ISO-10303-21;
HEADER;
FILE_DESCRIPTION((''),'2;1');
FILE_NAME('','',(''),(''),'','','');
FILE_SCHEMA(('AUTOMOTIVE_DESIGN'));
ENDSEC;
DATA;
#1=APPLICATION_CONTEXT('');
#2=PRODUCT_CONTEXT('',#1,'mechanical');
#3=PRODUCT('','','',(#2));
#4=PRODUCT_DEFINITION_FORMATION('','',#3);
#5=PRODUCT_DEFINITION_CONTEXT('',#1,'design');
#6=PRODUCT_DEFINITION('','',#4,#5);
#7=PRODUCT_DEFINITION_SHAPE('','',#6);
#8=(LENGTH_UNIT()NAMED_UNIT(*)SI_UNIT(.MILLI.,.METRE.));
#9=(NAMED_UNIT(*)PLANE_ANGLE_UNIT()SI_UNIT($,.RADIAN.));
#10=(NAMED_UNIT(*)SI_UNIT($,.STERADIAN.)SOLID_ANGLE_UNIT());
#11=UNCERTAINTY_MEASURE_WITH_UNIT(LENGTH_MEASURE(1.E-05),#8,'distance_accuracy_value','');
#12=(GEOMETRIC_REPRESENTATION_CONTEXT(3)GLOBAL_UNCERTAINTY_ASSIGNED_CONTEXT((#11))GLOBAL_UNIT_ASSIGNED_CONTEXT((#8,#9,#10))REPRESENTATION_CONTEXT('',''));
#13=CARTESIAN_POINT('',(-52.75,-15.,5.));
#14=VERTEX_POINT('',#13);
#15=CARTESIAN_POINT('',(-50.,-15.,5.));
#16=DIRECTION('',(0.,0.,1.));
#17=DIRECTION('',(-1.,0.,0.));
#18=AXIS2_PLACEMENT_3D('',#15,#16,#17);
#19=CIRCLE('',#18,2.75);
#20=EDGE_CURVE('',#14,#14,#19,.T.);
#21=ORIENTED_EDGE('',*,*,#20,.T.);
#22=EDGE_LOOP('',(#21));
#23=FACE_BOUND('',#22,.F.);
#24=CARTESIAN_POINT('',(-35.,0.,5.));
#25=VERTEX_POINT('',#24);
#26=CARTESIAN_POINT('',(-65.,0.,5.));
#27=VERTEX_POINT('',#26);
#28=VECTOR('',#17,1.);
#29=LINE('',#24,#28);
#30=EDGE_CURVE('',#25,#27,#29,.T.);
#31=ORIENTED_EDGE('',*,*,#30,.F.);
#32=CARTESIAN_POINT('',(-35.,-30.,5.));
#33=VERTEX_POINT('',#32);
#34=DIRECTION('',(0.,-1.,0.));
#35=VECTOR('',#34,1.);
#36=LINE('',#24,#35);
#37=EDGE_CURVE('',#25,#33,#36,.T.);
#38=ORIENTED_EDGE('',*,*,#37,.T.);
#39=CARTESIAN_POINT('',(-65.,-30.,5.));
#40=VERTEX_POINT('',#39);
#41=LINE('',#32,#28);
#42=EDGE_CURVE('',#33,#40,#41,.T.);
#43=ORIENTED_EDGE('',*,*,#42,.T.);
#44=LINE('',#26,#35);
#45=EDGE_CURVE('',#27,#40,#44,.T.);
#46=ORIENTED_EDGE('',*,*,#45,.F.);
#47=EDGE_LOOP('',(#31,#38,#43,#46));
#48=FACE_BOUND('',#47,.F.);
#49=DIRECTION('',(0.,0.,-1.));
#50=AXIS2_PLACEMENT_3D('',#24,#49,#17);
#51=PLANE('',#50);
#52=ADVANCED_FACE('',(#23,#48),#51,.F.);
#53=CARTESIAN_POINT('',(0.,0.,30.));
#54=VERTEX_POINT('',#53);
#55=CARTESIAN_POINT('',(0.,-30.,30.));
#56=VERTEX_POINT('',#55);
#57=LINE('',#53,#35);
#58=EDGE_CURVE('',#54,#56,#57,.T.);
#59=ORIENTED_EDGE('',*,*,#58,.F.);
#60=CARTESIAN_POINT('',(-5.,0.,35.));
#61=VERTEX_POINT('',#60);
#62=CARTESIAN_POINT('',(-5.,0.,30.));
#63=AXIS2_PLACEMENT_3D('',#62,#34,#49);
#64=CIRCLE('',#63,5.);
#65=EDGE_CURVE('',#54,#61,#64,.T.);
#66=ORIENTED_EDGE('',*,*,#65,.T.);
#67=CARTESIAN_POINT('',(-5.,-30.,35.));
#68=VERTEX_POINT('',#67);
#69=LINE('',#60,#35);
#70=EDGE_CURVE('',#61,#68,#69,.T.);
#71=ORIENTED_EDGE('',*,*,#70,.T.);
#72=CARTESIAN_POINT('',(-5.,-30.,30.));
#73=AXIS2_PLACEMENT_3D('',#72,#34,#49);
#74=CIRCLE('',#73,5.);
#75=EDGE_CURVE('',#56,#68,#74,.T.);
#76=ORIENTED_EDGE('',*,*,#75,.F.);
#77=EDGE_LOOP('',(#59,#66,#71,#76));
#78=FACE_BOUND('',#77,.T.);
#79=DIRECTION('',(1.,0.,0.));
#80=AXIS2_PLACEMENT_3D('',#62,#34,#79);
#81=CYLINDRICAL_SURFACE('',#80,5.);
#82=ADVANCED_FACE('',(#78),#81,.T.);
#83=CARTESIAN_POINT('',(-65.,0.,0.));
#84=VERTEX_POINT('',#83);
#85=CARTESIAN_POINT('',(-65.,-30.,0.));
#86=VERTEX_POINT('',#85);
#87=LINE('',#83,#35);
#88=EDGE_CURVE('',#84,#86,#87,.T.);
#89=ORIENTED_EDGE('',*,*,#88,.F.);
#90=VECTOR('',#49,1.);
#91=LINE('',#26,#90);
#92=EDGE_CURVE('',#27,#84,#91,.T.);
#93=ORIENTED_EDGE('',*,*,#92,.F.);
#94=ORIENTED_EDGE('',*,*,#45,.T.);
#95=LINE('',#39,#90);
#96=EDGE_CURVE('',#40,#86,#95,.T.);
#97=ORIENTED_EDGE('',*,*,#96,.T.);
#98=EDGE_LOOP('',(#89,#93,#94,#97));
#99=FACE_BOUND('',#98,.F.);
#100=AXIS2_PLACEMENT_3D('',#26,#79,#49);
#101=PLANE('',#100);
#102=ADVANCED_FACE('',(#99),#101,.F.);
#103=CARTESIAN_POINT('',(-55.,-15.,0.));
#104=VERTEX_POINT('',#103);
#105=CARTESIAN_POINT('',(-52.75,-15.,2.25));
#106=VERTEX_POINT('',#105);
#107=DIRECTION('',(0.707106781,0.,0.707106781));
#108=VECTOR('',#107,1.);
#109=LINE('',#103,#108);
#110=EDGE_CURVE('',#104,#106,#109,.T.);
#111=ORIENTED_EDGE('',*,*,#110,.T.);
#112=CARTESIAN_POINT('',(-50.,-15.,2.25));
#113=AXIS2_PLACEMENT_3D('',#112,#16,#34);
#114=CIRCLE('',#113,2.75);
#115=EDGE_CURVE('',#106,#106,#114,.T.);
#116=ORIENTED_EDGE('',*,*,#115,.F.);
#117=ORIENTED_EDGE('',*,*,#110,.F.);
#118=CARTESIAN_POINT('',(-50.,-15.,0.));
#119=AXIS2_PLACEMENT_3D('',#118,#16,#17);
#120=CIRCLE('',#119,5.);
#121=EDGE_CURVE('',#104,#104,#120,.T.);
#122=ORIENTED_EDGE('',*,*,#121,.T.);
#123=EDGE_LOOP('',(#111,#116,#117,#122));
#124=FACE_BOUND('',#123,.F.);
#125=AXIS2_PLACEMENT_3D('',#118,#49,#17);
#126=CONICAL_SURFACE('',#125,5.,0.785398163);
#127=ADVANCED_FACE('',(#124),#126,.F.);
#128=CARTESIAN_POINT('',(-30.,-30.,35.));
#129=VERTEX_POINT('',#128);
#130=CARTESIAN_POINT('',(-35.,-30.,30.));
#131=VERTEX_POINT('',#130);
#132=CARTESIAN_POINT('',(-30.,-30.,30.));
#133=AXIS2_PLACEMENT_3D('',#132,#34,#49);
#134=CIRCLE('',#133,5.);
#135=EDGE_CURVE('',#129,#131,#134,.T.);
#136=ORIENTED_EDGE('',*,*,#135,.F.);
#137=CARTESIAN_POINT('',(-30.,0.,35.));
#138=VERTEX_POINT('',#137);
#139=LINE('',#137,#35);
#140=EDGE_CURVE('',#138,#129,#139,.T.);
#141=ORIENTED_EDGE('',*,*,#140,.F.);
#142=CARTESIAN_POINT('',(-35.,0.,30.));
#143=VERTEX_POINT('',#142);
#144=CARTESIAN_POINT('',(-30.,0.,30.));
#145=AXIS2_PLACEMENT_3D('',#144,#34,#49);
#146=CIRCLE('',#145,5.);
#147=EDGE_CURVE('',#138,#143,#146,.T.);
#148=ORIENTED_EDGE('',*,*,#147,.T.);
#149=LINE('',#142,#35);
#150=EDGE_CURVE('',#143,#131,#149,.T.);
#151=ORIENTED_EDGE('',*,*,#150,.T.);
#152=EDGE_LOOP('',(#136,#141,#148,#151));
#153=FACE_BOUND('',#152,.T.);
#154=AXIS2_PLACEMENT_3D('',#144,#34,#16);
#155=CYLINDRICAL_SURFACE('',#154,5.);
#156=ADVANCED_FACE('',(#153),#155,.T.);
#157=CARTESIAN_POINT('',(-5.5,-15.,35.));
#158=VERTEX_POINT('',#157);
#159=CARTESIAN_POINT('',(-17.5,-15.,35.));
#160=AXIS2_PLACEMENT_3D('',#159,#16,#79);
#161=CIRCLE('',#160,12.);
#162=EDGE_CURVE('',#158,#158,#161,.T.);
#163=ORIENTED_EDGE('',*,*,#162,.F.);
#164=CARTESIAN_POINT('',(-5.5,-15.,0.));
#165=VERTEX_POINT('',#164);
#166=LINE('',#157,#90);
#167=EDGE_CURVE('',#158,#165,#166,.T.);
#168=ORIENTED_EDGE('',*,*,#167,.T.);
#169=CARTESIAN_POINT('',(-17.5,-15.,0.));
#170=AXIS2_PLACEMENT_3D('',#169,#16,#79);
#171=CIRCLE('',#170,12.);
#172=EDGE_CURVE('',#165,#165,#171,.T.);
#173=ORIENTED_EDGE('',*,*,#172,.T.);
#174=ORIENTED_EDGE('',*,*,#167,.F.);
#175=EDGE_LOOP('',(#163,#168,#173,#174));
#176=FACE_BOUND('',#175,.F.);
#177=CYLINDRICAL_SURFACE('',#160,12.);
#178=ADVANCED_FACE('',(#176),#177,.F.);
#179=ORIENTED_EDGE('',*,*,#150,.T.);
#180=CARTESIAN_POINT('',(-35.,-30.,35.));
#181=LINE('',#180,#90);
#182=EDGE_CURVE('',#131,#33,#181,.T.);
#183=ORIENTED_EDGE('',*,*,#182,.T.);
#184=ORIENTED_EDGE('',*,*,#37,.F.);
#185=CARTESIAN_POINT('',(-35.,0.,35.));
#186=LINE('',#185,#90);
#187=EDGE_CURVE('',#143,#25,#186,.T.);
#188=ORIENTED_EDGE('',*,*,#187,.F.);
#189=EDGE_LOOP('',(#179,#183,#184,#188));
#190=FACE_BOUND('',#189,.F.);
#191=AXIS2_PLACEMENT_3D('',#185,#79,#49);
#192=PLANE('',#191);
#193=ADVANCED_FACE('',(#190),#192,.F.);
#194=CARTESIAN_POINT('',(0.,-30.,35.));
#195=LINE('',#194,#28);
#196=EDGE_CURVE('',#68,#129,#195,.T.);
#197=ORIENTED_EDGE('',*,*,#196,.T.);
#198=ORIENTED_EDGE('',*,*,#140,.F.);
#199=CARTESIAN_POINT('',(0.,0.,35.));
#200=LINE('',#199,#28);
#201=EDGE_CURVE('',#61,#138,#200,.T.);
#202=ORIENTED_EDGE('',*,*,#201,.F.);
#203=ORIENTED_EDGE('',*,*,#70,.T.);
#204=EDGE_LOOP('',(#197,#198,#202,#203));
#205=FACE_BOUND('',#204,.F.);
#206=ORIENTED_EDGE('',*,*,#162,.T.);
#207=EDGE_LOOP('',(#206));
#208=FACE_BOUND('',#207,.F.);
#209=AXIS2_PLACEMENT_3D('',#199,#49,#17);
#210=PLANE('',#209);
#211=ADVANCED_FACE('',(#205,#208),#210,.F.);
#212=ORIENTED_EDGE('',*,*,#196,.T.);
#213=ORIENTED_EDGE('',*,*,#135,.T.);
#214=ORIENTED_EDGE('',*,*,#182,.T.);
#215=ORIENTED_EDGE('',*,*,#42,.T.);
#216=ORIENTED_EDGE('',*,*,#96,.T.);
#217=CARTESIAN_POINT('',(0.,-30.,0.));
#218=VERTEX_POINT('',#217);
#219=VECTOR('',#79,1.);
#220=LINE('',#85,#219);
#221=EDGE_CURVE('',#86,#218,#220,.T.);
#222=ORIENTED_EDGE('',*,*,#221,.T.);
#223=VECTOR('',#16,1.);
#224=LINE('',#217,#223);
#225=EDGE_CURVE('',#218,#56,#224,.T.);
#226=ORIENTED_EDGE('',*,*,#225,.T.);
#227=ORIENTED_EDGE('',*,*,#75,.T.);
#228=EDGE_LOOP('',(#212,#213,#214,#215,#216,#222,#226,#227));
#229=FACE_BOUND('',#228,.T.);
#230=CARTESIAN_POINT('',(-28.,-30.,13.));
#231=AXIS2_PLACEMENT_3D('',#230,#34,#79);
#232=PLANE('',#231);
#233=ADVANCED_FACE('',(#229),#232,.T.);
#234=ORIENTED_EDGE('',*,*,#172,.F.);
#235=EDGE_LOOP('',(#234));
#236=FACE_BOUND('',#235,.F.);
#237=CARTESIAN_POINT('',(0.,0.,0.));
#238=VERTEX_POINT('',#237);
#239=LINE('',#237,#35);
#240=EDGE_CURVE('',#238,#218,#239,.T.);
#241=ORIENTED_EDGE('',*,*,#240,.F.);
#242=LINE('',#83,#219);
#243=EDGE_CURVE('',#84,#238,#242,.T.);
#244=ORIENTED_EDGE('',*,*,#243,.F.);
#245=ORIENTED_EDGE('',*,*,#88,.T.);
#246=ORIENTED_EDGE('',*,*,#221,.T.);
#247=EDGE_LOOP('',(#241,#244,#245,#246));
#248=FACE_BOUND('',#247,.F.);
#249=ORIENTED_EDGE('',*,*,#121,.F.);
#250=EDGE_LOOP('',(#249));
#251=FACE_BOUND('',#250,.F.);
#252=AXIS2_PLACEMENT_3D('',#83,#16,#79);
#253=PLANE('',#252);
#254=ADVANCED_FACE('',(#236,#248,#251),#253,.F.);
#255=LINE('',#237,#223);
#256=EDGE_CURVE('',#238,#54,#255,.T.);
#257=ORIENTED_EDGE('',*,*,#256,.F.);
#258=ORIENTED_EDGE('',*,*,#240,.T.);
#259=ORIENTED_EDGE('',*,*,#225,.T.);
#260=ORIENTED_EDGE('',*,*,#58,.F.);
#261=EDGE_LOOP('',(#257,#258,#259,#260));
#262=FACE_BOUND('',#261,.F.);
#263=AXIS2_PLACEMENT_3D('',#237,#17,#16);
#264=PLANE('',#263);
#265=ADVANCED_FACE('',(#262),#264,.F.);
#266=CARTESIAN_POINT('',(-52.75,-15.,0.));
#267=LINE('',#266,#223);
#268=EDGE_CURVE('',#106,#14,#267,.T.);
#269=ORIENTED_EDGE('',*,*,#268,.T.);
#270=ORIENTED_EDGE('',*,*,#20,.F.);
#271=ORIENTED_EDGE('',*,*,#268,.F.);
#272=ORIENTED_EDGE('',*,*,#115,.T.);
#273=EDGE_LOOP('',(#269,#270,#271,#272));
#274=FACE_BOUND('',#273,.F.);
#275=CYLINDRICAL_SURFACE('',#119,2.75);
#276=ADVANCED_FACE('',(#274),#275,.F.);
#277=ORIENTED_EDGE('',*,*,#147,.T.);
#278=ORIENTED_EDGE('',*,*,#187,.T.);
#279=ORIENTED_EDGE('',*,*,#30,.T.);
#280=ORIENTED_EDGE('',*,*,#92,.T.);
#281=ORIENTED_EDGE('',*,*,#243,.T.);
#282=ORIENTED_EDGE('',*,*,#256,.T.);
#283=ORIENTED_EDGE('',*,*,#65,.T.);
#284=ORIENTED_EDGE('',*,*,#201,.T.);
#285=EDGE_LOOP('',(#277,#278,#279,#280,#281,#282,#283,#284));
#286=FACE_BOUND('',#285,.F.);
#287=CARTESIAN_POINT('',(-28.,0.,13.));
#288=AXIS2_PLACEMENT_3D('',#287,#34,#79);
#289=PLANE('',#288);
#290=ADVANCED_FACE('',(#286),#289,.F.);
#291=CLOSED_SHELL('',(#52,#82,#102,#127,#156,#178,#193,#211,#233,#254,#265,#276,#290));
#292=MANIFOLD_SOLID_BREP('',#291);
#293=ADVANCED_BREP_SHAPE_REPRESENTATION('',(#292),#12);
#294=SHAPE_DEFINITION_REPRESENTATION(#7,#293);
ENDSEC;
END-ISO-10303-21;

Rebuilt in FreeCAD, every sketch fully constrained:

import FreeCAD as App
import Part
import Sketcher

V = App.Vector
Q = App.Units.Quantity


def edges_at(feature, points):
    """Names of the edges that pass closest to the given points."""
    edges = feature.Shape.Edges
    near = lambda p: min(range(len(edges)), key=lambda i: edges[i].distToShape(Part.Vertex(*p))[0])
    return sorted({f"Edge{near(p) + 1}" for p in points})


def add_polygon(sketch, points):
    """Adds a closed chain of lines whose ends are joined by coincident constraints."""
    first, n = sketch.GeometryCount, len(points)
    for a, b in zip(points, points[1:] + points[:1]):
        sketch.addGeometry(Part.LineSegment(App.Vector(*a, 0), App.Vector(*b, 0)), False)
    for i in range(n):
        sketch.addConstraint(Sketcher.Constraint("Coincident", first + i, 2, first + (i + 1) % n, 1))

doc = App.newDocument("Part")
params = doc.addObject("Spreadsheet::Sheet", "Params")
for row, (alias, value) in enumerate([
    ("sketch1_width", "65 mm"),
    ("sketch1_width2", "35 mm"),
    ("pad1_length", "30 mm"),
    ("sketch2_diameter", "24 mm"),
    ("fillet_radius", "5 mm"),
    ("sketch3_diameter", "5.5 mm"),
    ("hole_diameter", "5.5 mm"),
    ("hole_depth", "16 mm"),
    ("hole_csink_diameter", "10 mm"),
], start=1):
    params.set(f"A{row}", alias)
    params.set(f"B{row}", "=" + value)
    params.setAlias(f"B{row}", alias)

body = doc.addObject("PartDesign::Body", "Body")

sketch1 = doc.addObject("Sketcher::SketchObject", "Sketch")
body.addObject(sketch1)
sketch1.AttachmentSupport = (doc.XZ_Plane, [""])
sketch1.MapMode = "FlatFace"
add_polygon(sketch1, [(-65, 0), (0, 0), (0, 35), (-35, 35), (-35, 5), (-65, 5)])
sketch1.addConstraint([
    Sketcher.Constraint("Horizontal", 0),
    Sketcher.Constraint("Vertical", 1),
    Sketcher.Constraint("Horizontal", 2),
    Sketcher.Constraint("Vertical", 3),
    Sketcher.Constraint("Horizontal", 4),
    Sketcher.Constraint("Vertical", 5),
    Sketcher.Constraint("Coincident", 0, 2, -1, 1),
    Sketcher.Constraint("Equal", 2, 1),
    Sketcher.Constraint("Equal", 4, 3),
    Sketcher.Constraint("DistanceX", 0, 1, 0, 2, Q("65 mm")),
    Sketcher.Constraint("DistanceX", 2, 2, 2, 1, Q("35 mm")),
])
sketch1.setExpression("Constraints[15]", "Params.sketch1_width")
sketch1.setExpression("Constraints[16]", "Params.sketch1_width2")
pad1 = doc.addObject("PartDesign::Pad", "Pad")
body.addObject(pad1)
pad1.Profile = sketch1
pad1.setExpression("Length", "Params.pad1_length")

sketch2 = doc.addObject("Sketcher::SketchObject", "Sketch001")
body.addObject(sketch2)
sketch2.AttachmentSupport = (doc.XY_Plane, [""])
sketch2.MapMode = "FlatFace"
sketch2.AttachmentOffset = App.Placement(V(0, 0, 35), App.Rotation())
sketch2.addGeometry(Part.Circle(V(-18, -15, 0), V(0, 0, 1), 12), False)
sketch2.addConstraint([
    Sketcher.Constraint("Diameter", 0, Q("24 mm")),
    Sketcher.Constraint("DistanceY", 0, 3, -1, 1, Q("15 mm")),
    Sketcher.Constraint("DistanceX", 0, 3, -1, 1, Q("17.5 mm")),
])
sketch2.setExpression("Constraints[0]", "Params.sketch2_diameter")
pocket1 = doc.addObject("PartDesign::Pocket", "Pocket")
body.addObject(pocket1)
pocket1.Profile = sketch2
pocket1.Type = "ThroughAll"
doc.recompute()

fillet = doc.addObject("PartDesign::Fillet", "Fillet")
body.addObject(fillet)
fillet.Base = (pocket1, edges_at(pocket1, [(0, -15, 35), (-35, -15, 35)]))
fillet.setExpression("Radius", "Params.fillet_radius")

sketch3 = doc.addObject("Sketcher::SketchObject", "Sketch002")
body.addObject(sketch3)
sketch3.AttachmentSupport = (doc.XY_Plane, [""])
sketch3.MapMode = "FlatFace"
sketch3.addGeometry(Part.Circle(V(-50, -15, 0), V(0, 0, 1), 2.8), False)
sketch3.addConstraint([
    Sketcher.Constraint("Diameter", 0, Q("5.5 mm")),
    Sketcher.Constraint("DistanceX", 0, 3, -1, 1, Q("50 mm")),
    Sketcher.Constraint("DistanceY", 0, 3, -1, 1, Q("15 mm")),
])
sketch3.setExpression("Constraints[0]", "Params.sketch3_diameter")
doc.recompute()
hole = doc.addObject("PartDesign::Hole", "Hole")
body.addObject(hole)
hole.Profile = sketch3
hole.ThreadType = "None"
hole.setExpression("Diameter", "Params.hole_diameter")
hole.DepthType = "Dimension"
hole.setExpression("Depth", "Params.hole_depth")
hole.DrillPoint = "Flat"
hole.HoleCutType = "Countersink"
hole.setExpression("HoleCutDiameter", "Params.hole_csink_diameter")
hole.HoleCutCountersinkAngle = 90
hole.Reversed = True

doc.recompute()
